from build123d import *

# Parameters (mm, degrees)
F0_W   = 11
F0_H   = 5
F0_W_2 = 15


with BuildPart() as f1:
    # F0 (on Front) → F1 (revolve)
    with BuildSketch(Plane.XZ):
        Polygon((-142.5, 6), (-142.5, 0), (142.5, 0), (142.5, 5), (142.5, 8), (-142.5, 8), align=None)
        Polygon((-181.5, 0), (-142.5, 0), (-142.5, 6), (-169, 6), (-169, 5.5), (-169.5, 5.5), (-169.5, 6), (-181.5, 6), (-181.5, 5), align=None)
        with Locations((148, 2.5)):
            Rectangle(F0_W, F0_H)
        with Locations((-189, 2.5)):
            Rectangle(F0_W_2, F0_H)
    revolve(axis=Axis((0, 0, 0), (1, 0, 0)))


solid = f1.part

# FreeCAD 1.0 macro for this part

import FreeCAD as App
import Part
import Sketcher

doc = App.newDocument("Part")
body = doc.addObject("PartDesign::Body", "Body")

sketch1 = doc.addObject("Sketcher::SketchObject", "Sketch")
body.addObject(sketch1)
sketch1.AttachmentSupport = (doc.XZ_Plane, [""])
sketch1.MapMode = "FlatFace"
sketch1.addGeometry([
    Part.LineSegment(App.Vector(142.5, 5, 0), App.Vector(142.5, 8, 0)),
    Part.LineSegment(App.Vector(142.5, 8, 0), App.Vector(-142.5, 8, 0)),
    Part.LineSegment(App.Vector(-142.5, 8, 0), App.Vector(-142.5, 6, 0)),
    Part.LineSegment(App.Vector(-142.5, 6, 0), App.Vector(-169, 6, 0)),
    Part.LineSegment(App.Vector(-169, 6, 0), App.Vector(-169, 5.5, 0)),
    Part.LineSegment(App.Vector(-169, 5.5, 0), App.Vector(-169.5, 5.5, 0)),
    Part.LineSegment(App.Vector(-169.5, 5.5, 0), App.Vector(-169.5, 6, 0)),
    Part.LineSegment(App.Vector(-169.5, 6, 0), App.Vector(-181.5, 6, 0)),
    Part.LineSegment(App.Vector(-181.5, 6, 0), App.Vector(-181.5, 5, 0)),
    Part.LineSegment(App.Vector(-181.5, 5, 0), App.Vector(-196.5, 5, 0)),
    Part.LineSegment(App.Vector(-196.5, 5, 0), App.Vector(-196.5, 0, 0)),
    Part.LineSegment(App.Vector(-196.5, 0, 0), App.Vector(153.5, 0, 0)),
    Part.LineSegment(App.Vector(153.5, 0, 0), App.Vector(153.5, 5, 0)),
    Part.LineSegment(App.Vector(153.5, 5, 0), App.Vector(142.5, 5, 0)),
], False)
sketch1.addConstraint([
    Sketcher.Constraint("Coincident", 0, 2, 1, 1),
    Sketcher.Constraint("Coincident", 1, 2, 2, 1),
    Sketcher.Constraint("Coincident", 2, 2, 3, 1),
    Sketcher.Constraint("Coincident", 3, 2, 4, 1),
    Sketcher.Constraint("Coincident", 4, 2, 5, 1),
    Sketcher.Constraint("Coincident", 5, 2, 6, 1),
    Sketcher.Constraint("Coincident", 6, 2, 7, 1),
    Sketcher.Constraint("Coincident", 7, 2, 8, 1),
    Sketcher.Constraint("Coincident", 8, 2, 9, 1),
    Sketcher.Constraint("Coincident", 9, 2, 10, 1),
    Sketcher.Constraint("Coincident", 10, 2, 11, 1),
    Sketcher.Constraint("Coincident", 11, 2, 12, 1),
    Sketcher.Constraint("Coincident", 12, 2, 13, 1),
    Sketcher.Constraint("Coincident", 13, 2, 0, 1),
    Sketcher.Constraint("Vertical", 0),
    Sketcher.Constraint("Horizontal", 1),
    Sketcher.Constraint("Vertical", 2),
    Sketcher.Constraint("Horizontal", 3),
    Sketcher.Constraint("Vertical", 4),
    Sketcher.Constraint("Horizontal", 5),
    Sketcher.Constraint("Vertical", 6),
    Sketcher.Constraint("Horizontal", 7),
    Sketcher.Constraint("Vertical", 8),
    Sketcher.Constraint("Horizontal", 9),
    Sketcher.Constraint("Vertical", 10),
    Sketcher.Constraint("Horizontal", 11),
    Sketcher.Constraint("Vertical", 12),
    Sketcher.Constraint("Horizontal", 13),
    Sketcher.Constraint("PointOnObject", 10, 2, -1),
    Sketcher.Constraint("Horizontal", 3, 2, 6, 2),
    Sketcher.Constraint("Horizontal", 9, 2, 12, 2),
    Sketcher.Constraint("Equal", 5, 4),
    Sketcher.Constraint("DistanceX", 1, 2, 1, 1, 285.0),
    Sketcher.Constraint("DistanceX", 7, 2, 7, 1, 12.0),
    Sketcher.Constraint("DistanceX", 9, 2, 9, 1, 15.0),
    Sketcher.Constraint("DistanceX", 11, 1, 11, 2, 350.0),
    Sketcher.Constraint("DistanceX", 13, 2, 13, 1, 11.0),
    Sketcher.Constraint("DistanceY", 0, 1, 0, 2, 3.0),
    Sketcher.Constraint("DistanceY", 2, 2, 2, 1, 2.0),
    Sketcher.Constraint("DistanceY", 10, 2, 10, 1, 5.0),
    Sketcher.Constraint("DistanceX", 3, 2, 3, 1, 26.5),
    Sketcher.Constraint("DistanceX", 3, 2, -1, 1, 169.0),
])
revolution = doc.addObject("PartDesign::Revolution", "Revolution")
body.addObject(revolution)
revolution.Profile = sketch1
revolution.ReferenceAxis = (sketch1, ["H_Axis"])
revolution.Angle = 360

doc.recompute()
